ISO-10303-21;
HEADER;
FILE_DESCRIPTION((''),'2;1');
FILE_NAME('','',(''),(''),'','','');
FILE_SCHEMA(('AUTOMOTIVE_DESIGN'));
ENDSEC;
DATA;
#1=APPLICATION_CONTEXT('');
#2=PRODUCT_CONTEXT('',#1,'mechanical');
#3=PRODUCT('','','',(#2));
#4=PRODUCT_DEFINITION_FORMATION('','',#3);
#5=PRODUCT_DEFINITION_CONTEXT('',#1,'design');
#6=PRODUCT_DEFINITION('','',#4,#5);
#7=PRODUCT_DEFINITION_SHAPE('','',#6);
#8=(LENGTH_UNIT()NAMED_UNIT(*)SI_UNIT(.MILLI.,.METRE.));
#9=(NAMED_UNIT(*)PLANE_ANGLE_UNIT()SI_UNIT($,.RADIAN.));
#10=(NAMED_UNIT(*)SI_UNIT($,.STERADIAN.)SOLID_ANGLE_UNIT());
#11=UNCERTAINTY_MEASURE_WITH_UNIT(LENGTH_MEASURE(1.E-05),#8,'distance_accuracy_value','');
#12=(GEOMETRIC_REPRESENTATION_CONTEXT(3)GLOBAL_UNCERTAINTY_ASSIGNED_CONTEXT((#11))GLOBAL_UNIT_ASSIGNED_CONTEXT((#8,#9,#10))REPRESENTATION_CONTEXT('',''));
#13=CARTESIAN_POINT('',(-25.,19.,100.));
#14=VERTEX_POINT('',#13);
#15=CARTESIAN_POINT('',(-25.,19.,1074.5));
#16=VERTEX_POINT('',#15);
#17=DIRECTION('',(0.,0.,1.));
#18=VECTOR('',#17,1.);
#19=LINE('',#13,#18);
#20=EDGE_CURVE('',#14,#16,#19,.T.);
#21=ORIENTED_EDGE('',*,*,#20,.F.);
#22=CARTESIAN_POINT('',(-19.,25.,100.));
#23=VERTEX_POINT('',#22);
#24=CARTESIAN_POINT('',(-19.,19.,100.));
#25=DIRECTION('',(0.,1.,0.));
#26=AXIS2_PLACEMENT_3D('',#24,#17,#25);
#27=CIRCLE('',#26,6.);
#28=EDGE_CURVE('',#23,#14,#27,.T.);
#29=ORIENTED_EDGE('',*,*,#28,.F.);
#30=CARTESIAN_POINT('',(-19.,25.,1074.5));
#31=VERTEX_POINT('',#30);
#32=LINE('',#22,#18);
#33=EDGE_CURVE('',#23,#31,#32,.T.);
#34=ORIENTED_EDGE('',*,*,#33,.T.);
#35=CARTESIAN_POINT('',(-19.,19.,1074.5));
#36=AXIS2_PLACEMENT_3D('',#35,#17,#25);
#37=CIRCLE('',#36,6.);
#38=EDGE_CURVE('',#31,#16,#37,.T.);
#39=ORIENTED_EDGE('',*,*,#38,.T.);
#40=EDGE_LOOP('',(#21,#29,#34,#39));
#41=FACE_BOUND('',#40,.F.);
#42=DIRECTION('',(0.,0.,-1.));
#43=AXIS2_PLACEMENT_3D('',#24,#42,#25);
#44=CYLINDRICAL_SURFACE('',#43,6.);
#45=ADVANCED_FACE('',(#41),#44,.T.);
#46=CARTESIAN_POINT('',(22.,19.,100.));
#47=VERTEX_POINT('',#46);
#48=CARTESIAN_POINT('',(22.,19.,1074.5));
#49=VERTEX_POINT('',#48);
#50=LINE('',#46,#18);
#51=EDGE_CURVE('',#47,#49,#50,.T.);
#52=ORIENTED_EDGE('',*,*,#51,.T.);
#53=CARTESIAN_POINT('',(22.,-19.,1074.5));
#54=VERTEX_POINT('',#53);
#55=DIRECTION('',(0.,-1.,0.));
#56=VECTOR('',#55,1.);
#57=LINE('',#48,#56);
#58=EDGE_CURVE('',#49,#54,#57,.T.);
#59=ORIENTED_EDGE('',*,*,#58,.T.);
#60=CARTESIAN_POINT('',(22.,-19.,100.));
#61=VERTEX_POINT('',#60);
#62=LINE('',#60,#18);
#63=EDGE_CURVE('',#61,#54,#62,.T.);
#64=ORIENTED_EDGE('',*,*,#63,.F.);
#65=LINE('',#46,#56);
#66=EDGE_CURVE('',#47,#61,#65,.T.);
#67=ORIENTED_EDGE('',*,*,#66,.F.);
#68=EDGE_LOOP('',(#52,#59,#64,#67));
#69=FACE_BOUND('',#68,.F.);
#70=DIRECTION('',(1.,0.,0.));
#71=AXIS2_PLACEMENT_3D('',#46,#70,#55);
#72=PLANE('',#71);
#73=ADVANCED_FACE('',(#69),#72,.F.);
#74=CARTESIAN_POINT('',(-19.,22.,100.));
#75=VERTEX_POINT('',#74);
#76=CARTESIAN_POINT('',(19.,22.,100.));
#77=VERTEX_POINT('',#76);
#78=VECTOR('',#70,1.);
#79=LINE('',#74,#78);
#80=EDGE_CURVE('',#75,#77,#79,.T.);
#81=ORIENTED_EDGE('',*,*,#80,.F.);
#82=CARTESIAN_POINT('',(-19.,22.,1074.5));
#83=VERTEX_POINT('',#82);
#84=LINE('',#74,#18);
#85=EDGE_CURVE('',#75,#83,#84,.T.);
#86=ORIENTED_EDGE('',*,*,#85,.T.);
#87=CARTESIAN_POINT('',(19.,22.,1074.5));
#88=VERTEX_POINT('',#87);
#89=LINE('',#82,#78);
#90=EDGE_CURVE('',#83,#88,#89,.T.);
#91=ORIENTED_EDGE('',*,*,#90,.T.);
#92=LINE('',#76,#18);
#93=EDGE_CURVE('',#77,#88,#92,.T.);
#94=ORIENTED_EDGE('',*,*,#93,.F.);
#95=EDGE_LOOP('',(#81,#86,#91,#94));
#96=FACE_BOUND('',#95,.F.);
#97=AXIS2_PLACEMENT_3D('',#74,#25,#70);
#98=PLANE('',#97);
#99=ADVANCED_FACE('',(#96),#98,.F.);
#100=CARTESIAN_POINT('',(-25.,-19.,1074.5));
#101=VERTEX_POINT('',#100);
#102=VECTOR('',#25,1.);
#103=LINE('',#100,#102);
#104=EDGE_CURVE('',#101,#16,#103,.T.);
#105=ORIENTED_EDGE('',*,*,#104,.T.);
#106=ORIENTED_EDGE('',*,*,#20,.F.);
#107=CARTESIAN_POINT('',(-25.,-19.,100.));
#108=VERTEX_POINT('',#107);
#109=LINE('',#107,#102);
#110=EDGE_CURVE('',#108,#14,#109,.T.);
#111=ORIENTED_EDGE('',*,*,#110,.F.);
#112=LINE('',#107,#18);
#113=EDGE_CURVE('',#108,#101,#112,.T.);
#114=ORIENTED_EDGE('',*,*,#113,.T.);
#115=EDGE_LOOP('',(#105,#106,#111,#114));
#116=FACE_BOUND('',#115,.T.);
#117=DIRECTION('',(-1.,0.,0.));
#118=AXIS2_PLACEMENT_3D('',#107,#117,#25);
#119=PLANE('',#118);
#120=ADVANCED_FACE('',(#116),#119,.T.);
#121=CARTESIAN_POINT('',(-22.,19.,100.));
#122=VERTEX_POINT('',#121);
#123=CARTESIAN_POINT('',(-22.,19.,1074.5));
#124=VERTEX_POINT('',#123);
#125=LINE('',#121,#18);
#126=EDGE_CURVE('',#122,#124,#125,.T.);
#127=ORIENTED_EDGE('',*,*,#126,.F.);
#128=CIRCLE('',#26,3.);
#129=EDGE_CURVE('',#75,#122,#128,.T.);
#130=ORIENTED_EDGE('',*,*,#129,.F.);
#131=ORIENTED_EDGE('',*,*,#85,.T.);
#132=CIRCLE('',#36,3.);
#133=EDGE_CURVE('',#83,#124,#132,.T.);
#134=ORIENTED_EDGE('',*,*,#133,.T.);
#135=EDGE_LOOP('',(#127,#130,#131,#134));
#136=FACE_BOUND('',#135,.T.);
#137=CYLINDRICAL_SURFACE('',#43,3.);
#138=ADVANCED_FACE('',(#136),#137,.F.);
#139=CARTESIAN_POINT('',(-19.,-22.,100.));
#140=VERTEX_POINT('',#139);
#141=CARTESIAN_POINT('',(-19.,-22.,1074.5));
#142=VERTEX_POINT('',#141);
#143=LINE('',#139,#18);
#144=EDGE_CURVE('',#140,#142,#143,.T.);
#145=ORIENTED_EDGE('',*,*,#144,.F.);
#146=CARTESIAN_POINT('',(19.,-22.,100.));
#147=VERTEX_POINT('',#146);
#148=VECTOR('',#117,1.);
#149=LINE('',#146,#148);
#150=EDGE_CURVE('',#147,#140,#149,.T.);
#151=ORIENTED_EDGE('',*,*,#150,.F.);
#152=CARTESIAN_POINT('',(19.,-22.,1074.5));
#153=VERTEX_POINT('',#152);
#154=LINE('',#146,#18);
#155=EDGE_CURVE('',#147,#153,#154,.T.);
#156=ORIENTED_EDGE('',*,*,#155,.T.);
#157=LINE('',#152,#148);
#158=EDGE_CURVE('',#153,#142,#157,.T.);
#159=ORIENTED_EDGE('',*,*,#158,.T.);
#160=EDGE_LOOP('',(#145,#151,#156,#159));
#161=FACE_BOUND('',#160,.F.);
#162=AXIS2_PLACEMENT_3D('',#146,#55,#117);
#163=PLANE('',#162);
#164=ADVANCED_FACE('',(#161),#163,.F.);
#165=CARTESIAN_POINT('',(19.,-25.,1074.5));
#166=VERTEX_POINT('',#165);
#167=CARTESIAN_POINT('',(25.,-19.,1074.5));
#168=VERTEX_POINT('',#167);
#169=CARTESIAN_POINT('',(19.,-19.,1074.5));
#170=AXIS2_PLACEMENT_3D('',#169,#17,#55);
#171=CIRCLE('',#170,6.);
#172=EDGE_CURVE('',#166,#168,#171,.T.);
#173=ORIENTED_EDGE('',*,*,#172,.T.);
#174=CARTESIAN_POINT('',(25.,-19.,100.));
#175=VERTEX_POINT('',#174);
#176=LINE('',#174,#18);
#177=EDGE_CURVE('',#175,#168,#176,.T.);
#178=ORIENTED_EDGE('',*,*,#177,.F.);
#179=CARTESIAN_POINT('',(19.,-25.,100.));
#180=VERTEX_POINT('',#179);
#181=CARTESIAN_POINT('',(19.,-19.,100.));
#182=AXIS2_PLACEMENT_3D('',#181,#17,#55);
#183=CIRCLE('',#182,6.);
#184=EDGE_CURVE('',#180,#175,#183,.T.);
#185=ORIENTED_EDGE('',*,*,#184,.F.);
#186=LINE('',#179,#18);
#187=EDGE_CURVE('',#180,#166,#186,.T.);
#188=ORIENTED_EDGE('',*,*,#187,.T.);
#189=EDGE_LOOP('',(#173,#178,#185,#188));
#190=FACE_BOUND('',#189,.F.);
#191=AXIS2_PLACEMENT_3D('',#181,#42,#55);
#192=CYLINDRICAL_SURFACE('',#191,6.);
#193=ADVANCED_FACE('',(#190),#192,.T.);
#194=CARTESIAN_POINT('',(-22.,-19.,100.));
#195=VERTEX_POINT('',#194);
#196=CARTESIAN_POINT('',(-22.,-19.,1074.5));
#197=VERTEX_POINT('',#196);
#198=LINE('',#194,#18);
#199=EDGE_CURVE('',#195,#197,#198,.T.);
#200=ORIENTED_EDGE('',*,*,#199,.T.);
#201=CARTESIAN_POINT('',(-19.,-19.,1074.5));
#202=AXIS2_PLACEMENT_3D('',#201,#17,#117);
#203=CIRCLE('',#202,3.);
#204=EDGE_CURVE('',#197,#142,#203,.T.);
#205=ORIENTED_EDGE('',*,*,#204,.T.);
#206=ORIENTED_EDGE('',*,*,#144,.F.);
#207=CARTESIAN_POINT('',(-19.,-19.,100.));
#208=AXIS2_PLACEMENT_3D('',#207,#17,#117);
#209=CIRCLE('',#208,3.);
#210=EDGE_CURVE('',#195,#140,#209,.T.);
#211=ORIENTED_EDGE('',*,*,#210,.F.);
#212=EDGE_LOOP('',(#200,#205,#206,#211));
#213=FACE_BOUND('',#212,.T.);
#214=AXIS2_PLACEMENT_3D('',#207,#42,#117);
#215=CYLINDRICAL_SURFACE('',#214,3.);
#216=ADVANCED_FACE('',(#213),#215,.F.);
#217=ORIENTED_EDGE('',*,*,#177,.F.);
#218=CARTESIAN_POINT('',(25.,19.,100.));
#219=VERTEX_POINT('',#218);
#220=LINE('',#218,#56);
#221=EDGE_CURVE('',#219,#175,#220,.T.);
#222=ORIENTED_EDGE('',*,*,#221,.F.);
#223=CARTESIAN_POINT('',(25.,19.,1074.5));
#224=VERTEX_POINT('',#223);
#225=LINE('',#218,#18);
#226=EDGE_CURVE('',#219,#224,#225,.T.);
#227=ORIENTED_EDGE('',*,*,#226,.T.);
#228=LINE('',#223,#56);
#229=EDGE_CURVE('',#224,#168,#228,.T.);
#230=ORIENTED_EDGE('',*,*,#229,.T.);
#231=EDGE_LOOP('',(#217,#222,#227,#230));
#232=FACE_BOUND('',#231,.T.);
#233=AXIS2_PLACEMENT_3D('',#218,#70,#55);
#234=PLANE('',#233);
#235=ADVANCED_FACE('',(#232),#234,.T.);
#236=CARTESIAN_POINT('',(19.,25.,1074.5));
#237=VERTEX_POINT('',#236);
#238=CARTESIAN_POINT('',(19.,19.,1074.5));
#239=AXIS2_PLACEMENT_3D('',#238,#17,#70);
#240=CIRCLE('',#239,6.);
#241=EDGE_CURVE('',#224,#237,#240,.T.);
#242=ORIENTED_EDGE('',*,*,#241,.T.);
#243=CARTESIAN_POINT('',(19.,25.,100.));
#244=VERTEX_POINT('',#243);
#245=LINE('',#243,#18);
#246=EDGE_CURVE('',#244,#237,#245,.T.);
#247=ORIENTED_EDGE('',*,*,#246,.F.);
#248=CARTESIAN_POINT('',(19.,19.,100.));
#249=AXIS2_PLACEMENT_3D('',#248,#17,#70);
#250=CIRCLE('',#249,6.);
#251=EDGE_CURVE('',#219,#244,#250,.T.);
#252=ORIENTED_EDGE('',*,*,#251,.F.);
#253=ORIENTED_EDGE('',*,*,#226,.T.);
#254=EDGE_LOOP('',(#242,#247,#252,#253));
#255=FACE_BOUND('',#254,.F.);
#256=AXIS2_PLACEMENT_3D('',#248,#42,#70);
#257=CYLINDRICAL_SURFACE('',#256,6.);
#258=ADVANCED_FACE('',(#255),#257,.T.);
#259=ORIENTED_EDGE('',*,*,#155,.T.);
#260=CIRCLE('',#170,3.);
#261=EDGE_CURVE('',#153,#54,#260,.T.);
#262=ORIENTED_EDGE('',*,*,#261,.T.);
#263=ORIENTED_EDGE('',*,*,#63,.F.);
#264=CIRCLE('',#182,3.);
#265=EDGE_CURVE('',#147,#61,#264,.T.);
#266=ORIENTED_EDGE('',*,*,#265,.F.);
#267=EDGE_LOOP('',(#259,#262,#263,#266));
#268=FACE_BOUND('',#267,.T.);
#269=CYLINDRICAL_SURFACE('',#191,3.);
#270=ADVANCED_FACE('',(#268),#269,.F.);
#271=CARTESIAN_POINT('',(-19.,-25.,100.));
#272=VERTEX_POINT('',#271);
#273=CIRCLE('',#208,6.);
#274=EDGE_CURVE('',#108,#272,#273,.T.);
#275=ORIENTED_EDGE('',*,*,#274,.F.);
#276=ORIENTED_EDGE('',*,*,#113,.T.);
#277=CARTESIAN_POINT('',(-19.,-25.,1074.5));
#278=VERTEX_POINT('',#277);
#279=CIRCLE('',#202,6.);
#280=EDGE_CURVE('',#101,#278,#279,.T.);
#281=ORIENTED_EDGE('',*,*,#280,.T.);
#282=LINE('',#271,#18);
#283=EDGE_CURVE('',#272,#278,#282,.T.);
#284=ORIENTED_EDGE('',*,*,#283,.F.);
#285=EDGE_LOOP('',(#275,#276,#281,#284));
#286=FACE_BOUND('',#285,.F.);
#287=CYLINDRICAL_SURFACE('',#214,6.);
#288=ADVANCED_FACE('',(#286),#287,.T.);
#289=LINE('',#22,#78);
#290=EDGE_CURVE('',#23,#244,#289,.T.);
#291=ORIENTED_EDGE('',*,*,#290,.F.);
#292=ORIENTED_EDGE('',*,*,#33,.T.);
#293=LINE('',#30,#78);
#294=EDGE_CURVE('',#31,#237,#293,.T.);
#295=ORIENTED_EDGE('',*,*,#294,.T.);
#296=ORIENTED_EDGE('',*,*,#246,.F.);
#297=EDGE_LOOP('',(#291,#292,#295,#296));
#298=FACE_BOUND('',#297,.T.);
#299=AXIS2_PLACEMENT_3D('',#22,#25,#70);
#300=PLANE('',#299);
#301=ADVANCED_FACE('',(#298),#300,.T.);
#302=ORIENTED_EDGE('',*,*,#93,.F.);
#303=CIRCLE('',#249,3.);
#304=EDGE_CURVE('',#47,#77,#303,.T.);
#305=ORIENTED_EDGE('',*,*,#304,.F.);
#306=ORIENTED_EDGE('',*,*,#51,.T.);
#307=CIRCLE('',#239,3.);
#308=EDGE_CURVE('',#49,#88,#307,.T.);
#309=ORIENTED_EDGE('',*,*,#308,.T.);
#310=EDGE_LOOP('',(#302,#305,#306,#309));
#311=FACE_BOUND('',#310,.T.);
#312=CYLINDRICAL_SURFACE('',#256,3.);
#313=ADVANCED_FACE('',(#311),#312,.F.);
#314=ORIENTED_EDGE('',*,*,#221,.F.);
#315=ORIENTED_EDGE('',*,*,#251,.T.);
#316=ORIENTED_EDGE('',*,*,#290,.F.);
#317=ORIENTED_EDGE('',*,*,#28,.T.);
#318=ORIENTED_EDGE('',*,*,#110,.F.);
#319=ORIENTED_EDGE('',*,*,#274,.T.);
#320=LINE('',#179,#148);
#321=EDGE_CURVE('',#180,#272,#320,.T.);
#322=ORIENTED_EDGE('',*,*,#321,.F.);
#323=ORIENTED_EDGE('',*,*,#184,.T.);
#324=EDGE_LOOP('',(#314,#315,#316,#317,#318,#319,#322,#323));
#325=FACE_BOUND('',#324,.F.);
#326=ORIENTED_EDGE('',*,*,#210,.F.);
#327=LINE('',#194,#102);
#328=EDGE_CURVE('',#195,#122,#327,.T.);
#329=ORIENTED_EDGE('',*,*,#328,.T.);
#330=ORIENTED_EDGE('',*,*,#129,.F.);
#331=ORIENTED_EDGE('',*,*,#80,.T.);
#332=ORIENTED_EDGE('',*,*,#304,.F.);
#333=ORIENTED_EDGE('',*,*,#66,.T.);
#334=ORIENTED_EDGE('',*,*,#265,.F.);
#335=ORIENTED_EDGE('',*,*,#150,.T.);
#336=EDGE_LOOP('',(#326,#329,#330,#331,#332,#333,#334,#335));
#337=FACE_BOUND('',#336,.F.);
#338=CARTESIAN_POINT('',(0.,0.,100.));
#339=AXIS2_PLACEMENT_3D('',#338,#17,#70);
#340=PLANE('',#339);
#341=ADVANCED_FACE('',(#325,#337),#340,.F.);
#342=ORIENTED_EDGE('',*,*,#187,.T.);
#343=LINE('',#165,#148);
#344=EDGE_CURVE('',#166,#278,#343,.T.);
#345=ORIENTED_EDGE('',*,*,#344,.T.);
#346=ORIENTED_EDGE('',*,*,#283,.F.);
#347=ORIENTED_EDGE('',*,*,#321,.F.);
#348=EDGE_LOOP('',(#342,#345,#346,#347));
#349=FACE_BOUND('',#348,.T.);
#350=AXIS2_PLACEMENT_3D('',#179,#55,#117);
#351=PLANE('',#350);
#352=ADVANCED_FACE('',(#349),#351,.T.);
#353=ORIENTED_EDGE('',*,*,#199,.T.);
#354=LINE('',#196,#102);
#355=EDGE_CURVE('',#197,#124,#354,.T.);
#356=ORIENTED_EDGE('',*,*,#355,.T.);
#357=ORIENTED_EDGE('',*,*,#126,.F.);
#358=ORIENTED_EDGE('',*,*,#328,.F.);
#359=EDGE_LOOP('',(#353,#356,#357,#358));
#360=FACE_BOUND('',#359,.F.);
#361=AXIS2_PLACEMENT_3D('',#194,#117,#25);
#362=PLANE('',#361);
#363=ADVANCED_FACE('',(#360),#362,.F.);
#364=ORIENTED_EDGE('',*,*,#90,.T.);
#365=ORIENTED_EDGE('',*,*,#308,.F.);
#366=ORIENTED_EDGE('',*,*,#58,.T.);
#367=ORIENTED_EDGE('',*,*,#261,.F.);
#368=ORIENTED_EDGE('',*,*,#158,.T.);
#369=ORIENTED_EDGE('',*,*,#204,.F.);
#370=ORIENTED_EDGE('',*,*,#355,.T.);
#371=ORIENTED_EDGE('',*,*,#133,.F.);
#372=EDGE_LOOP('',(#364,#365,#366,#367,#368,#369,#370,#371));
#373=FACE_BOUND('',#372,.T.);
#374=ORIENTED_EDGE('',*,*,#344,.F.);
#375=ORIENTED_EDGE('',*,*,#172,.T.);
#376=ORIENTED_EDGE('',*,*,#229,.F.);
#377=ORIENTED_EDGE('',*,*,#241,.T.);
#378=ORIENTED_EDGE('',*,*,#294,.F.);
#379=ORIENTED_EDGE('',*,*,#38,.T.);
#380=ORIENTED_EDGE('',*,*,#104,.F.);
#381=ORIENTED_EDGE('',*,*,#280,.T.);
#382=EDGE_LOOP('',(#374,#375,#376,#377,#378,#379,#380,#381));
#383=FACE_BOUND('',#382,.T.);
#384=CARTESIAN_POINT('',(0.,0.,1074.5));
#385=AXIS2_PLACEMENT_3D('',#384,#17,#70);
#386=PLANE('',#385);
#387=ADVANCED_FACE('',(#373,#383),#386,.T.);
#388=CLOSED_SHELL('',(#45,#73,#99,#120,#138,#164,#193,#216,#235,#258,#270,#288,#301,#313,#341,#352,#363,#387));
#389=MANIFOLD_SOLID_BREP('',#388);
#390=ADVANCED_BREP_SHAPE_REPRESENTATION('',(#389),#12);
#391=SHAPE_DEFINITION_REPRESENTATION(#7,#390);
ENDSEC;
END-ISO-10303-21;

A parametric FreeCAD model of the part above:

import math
import FreeCAD as App
import Part
import Sketcher

V = App.Vector

doc = App.newDocument("Part")
body = doc.addObject("PartDesign::Body", "Body")

# Sketch on XY plane
sketch1 = body.newObject("Sketcher::SketchObject", "Sketch")
sketch1.AttachmentSupport = (doc.getObject("XY_Plane"), [""])
sketch1.MapMode = "FlatFace"
sketch1.AttachmentOffset = App.Placement(V(0, 0, 100), App.Rotation())
sketch1.addGeometry([
    Part.LineSegment(V(-25, 19, 0), V(-25, -19, 0)),  # 0
    Part.ArcOfCircle(Part.Circle(V(-19, -19, 0), V(0, 0, 1), 6), math.radians(180), math.radians(270)),  # 1
    Part.LineSegment(V(-19, -25, 0), V(19, -25, 0)),  # 2
    Part.ArcOfCircle(Part.Circle(V(19, -19, 0), V(0, 0, 1), 6), math.radians(-90), math.radians(0)),  # 3
    Part.LineSegment(V(25, -19, 0), V(25, 19, 0)),  # 4
    Part.ArcOfCircle(Part.Circle(V(19, 19, 0), V(0, 0, 1), 6), math.radians(0), math.radians(90)),  # 5
    Part.LineSegment(V(19, 25, 0), V(-19, 25, 0)),  # 6
    Part.ArcOfCircle(Part.Circle(V(-19, 19, 0), V(0, 0, 1), 6), math.radians(90), math.radians(180)),  # 7
    Part.ArcOfCircle(Part.Circle(V(-19, 19, 0), V(0, 0, 1), 3), math.radians(90), math.radians(180)),  # 8
    Part.LineSegment(V(-19, 22, 0), V(19, 22, 0)),  # 9
    Part.ArcOfCircle(Part.Circle(V(19, 19, 0), V(0, 0, 1), 3), math.radians(0), math.radians(90)),  # 10
    Part.LineSegment(V(22, 19, 0), V(22, -19, 0)),  # 11
    Part.ArcOfCircle(Part.Circle(V(19, -19, 0), V(0, 0, 1), 3), math.radians(-90), math.radians(0)),  # 12
    Part.LineSegment(V(19, -22, 0), V(-19, -22, 0)),  # 13
    Part.ArcOfCircle(Part.Circle(V(-19, -19, 0), V(0, 0, 1), 3), math.radians(180), math.radians(270)),  # 14
    Part.LineSegment(V(-22, -19, 0), V(-22, 19, 0)),  # 15
], False)
sketch1.addConstraint([
    Sketcher.Constraint("Tangent", 0, 2, 1, 1),
    Sketcher.Constraint("Tangent", 1, 2, 2, 1),
    Sketcher.Constraint("Tangent", 2, 2, 3, 1),
    Sketcher.Constraint("Tangent", 3, 2, 4, 1),
    Sketcher.Constraint("Tangent", 4, 2, 5, 1),
    Sketcher.Constraint("Tangent", 5, 2, 6, 1),
    Sketcher.Constraint("Tangent", 6, 2, 7, 1),
    Sketcher.Constraint("Tangent", 7, 2, 0, 1),
    Sketcher.Constraint("Tangent", 8, 1, 9, 1),
    Sketcher.Constraint("Tangent", 9, 2, 10, 2),
    Sketcher.Constraint("Tangent", 10, 1, 11, 1),
    Sketcher.Constraint("Tangent", 11, 2, 12, 2),
    Sketcher.Constraint("Tangent", 12, 1, 13, 1),
    Sketcher.Constraint("Tangent", 13, 2, 14, 2),
    Sketcher.Constraint("Tangent", 14, 1, 15, 1),
    Sketcher.Constraint("Tangent", 15, 2, 8, 2),
    Sketcher.Constraint("Vertical", 0),
    Sketcher.Constraint("Horizontal", 2),
    Sketcher.Constraint("Vertical", 4),
    Sketcher.Constraint("Horizontal", 6),
    Sketcher.Constraint("Horizontal", 9),
    Sketcher.Constraint("Vertical", 11),
    Sketcher.Constraint("Horizontal", 13),
    Sketcher.Constraint("Vertical", 15),
    Sketcher.Constraint("Coincident", 8, 3, 7, 3),
    Sketcher.Constraint("Coincident", 10, 3, 5, 3),
    Sketcher.Constraint("Coincident", 12, 3, 3, 3),
    Sketcher.Constraint("Equal", 1, 3),
    Sketcher.Constraint("Equal", 3, 5),
    Sketcher.Constraint("Equal", 5, 7),
    Sketcher.Constraint("Equal", 12, 14),
    Sketcher.Constraint("Symmetric", 1, 3, 5, 3, -1, 1),
    Sketcher.Constraint("Equal", 13, 0),
    Sketcher.Constraint("Radius", 1, 6.0),
    Sketcher.Constraint("Radius", 8, 3.0),
    Sketcher.Constraint("DistanceX", 0, 2, -1, 1, 25.0),
])
pad1 = body.newObject("PartDesign::Pad", "Pad")
pad1.Profile = sketch1
pad1.Length = 974.5

doc.recompute()
